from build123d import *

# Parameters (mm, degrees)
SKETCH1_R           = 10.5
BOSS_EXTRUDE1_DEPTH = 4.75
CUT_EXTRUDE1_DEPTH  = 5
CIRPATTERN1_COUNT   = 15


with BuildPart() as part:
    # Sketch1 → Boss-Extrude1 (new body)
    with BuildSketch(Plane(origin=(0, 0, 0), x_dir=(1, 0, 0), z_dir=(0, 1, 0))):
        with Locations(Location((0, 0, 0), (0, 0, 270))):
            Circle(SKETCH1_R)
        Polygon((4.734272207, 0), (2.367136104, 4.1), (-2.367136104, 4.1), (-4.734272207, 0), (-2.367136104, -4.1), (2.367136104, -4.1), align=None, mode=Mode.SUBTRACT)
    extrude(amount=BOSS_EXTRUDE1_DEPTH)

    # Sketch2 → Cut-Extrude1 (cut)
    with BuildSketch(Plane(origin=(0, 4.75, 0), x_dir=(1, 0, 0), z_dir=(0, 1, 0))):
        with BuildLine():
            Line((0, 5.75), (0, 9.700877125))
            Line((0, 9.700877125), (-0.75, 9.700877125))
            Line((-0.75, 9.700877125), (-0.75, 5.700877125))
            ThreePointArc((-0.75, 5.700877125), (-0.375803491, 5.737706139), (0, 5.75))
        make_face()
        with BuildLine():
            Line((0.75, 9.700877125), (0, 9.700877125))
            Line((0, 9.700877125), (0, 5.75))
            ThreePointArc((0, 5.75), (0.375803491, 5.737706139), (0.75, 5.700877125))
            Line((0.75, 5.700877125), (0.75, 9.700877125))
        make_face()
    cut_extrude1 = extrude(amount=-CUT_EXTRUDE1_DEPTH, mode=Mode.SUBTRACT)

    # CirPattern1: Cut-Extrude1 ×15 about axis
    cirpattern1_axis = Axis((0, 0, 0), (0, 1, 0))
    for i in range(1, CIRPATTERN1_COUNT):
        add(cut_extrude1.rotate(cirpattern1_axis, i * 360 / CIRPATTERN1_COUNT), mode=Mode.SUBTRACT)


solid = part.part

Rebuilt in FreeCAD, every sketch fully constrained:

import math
import FreeCAD as App
import Part
import Sketcher
Q = App.Units.Quantity


def add_polygon(sketch, points):
    """Adds a closed chain of lines whose ends are joined by coincident constraints."""
    first, n = sketch.GeometryCount, len(points)
    for a, b in zip(points, points[1:] + points[:1]):
        sketch.addGeometry(Part.LineSegment(App.Vector(*a, 0), App.Vector(*b, 0)), False)
    for i in range(n):
        sketch.addConstraint(Sketcher.Constraint("Coincident", first + i, 2, first + (i + 1) % n, 1))

doc = App.newDocument("Part")
body = doc.addObject("PartDesign::Body", "Body")

# Sketch on XZ plane
sketch1 = doc.addObject("Sketcher::SketchObject", "Sketch")
body.addObject(sketch1)
sketch1.AttachmentSupport = (doc.XZ_Plane, [""])
sketch1.MapMode = "FlatFace"
sketch1.addGeometry(Part.Circle(App.Vector(0, 0, 0), App.Vector(0, 0, 1), 10.5), False)  # 0
add_polygon(sketch1, [(2.4, -4.1), (4.7, 0), (2.4, 4.1), (-2.4, 4.1), (-4.7, 0), (-2.4, -4.1)])  # lines 1-6
sketch1.addConstraint([
    Sketcher.Constraint("Horizontal", 3),
    Sketcher.Constraint("Horizontal", 6),
    Sketcher.Constraint("Coincident", 0, 3, -1, 1),
    Sketcher.Constraint("Symmetric", 1, 2, 4, 2, -1, 1),
    Sketcher.Constraint("Symmetric", 2, 2, 5, 2, -1, 1),
    Sketcher.Constraint("PointOnObject", 1, 2, -1),
    Sketcher.Constraint("Parallel", 1, 4),
    Sketcher.Constraint("Vertical", 3, 2, 5, 2),
    Sketcher.Constraint("Diameter", 0, Q("21 mm")),
    Sketcher.Constraint("Angle", 1, Q("60 deg")),
    Sketcher.Constraint("DistanceY", -1, 1, 2, 2, Q("4.1 mm")),
    Sketcher.Constraint("DistanceX", 3, 2, 3, 1, Q("4.734272 mm")),
])
pad1 = doc.addObject("PartDesign::Pad", "Pad")
body.addObject(pad1)
pad1.Profile = sketch1
pad1.Length = 4.75
pad1.Reversed = True

# Sketch on XZ plane
sketch2 = doc.addObject("Sketcher::SketchObject", "Sketch001")
body.addObject(sketch2)
sketch2.AttachmentSupport = (doc.XZ_Plane, [""])
sketch2.MapMode = "FlatFace"
sketch2.AttachmentOffset = App.Placement(App.Vector(0, 0, -4.75), App.Rotation())
sketch2.addGeometry([
    Part.LineSegment(App.Vector(-0.8, -9.7, 0), App.Vector(-0.8, -5.7, 0)),  # 0
    Part.ArcOfCircle(Part.Circle(App.Vector(0, 0, 0), App.Vector(0, 0, 1), 5.7), math.radians(-97.49), math.radians(-90)),  # 1
    Part.ArcOfCircle(Part.Circle(App.Vector(0, 0, 0), App.Vector(0, 0, 1), 5.7), math.radians(-90), math.radians(-82.51)),  # 2
    Part.LineSegment(App.Vector(0.8, -5.7, 0), App.Vector(0.8, -9.7, 0)),  # 3
    Part.LineSegment(App.Vector(0.8, -9.7, 0), App.Vector(-0.8, -9.7, 0)),  # 4
], False)
sketch2.addConstraint([
    Sketcher.Constraint("Coincident", 0, 2, 1, 1),
    Sketcher.Constraint("Tangent", 1, 2, 2, 1),
    Sketcher.Constraint("Coincident", 2, 2, 3, 1),
    Sketcher.Constraint("Coincident", 3, 2, 4, 1),
    Sketcher.Constraint("Coincident", 4, 2, 0, 1),
    Sketcher.Constraint("Vertical", 0),
    Sketcher.Constraint("Vertical", 3),
    Sketcher.Constraint("Horizontal", 4),
    Sketcher.Constraint("Coincident", 1, 3, -1, 1),
    Sketcher.Constraint("Equal", 1, 2),
    Sketcher.Constraint("PointOnObject", 1, 2, -2),
    Sketcher.Constraint("Horizontal", 0, 2, 2, 2),
    Sketcher.Constraint("DistanceY", 0, 1, 0, 2, Q("4 mm")),
    Sketcher.Constraint("Radius", 1, Q("5.75 mm")),
    Sketcher.Constraint("DistanceX", 4, 2, 4, 1, Q("1.5 mm")),
])
pocket1 = doc.addObject("PartDesign::Pocket", "Pocket")
body.addObject(pocket1)
pocket1.Profile = sketch2
pocket1.Length = 5
pocket1.Reversed = True
doc.recompute()

polarpattern = doc.addObject("PartDesign::PolarPattern", "PolarPattern")
body.addObject(polarpattern)
polarpattern.Originals = [pocket1]
polarpattern.Axis = (doc.Y_Axis, [""])
polarpattern.Angle = 360
polarpattern.Occurrences = 15
body.Tip = polarpattern

doc.recompute()
